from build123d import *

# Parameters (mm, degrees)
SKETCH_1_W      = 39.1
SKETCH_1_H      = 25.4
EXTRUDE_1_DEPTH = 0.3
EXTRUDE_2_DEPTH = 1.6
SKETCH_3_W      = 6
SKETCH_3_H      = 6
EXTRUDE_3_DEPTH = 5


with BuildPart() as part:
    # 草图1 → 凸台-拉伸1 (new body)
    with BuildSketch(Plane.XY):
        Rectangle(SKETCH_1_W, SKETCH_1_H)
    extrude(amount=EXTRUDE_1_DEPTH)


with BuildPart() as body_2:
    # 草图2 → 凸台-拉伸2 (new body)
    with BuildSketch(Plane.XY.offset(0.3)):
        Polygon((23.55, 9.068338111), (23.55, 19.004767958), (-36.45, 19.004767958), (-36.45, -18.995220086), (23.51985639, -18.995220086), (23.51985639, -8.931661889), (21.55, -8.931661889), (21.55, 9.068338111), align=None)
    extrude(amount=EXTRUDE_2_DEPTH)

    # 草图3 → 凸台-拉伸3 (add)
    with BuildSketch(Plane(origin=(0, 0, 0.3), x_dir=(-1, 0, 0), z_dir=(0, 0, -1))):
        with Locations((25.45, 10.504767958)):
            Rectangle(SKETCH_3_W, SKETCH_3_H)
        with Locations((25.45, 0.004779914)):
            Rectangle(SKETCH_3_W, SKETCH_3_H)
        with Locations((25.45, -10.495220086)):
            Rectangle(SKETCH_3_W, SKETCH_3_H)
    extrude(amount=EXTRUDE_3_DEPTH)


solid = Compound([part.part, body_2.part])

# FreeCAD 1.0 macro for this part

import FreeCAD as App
import Part
import Sketcher

V = App.Vector
Q = App.Units.Quantity


def add_polygon(sketch, points):
    """Adds a closed chain of lines whose ends are joined by coincident constraints."""
    first, n = sketch.GeometryCount, len(points)
    for a, b in zip(points, points[1:] + points[:1]):
        sketch.addGeometry(Part.LineSegment(App.Vector(*a, 0), App.Vector(*b, 0)), False)
    for i in range(n):
        sketch.addConstraint(Sketcher.Constraint("Coincident", first + i, 2, first + (i + 1) % n, 1))

doc = App.newDocument("Part")
body = doc.addObject("PartDesign::Body", "Body")

# Sketch on XY plane
sketch1 = body.newObject("Sketcher::SketchObject", "Sketch")
sketch1.AttachmentSupport = (doc.getObject("XY_Plane"), [""])
sketch1.MapMode = "FlatFace"
add_polygon(sketch1, [(-20, 13), (-20, -13), (20, -13), (20, 13)])  # lines 0-3
sketch1.addConstraint([
    Sketcher.Constraint("Vertical", 0),
    Sketcher.Constraint("Horizontal", 1),
    Sketcher.Constraint("Vertical", 2),
    Sketcher.Constraint("Horizontal", 3),
    Sketcher.Constraint("Symmetric", 0, 2, 2, 2, -1, 1),
    Sketcher.Constraint("DistanceX", 1, 1, 1, 2, Q("39.1 mm")),
    Sketcher.Constraint("DistanceY", 0, 2, 0, 1, Q("25.4 mm")),
])
pad1 = body.newObject("PartDesign::Pad", "Pad")
pad1.Profile = sketch1
pad1.Length = 0.3
body2 = doc.addObject("PartDesign::Body", "Body001")

# Sketch on XY plane
sketch2 = body2.newObject("Sketcher::SketchObject", "Sketch001")
sketch2.AttachmentSupport = (doc.getObject("XY_Plane001"), [""])
sketch2.MapMode = "FlatFace"
sketch2.AttachmentOffset = App.Placement(V(0, 0, 0.3), App.Rotation())
add_polygon(sketch2, [(23.6, 9.1), (23.6, 19), (-36.5, 19), (-36.5, -19), (23.5, -19), (23.5, -8.9), (21.6, -8.9), (21.6, 9.1)])  # lines 0-7
sketch2.addConstraint([
    Sketcher.Constraint("Vertical", 0),
    Sketcher.Constraint("Horizontal", 1),
    Sketcher.Constraint("Vertical", 2),
    Sketcher.Constraint("Horizontal", 3),
    Sketcher.Constraint("Vertical", 4),
    Sketcher.Constraint("Horizontal", 5),
    Sketcher.Constraint("Vertical", 6),
    Sketcher.Constraint("Horizontal", 7),
    Sketcher.Constraint("DistanceX", 1, 2, 1, 1, Q("60 mm")),
    Sketcher.Constraint("DistanceX", 7, 1, 7, 2, Q("2 mm")),
    Sketcher.Constraint("DistanceY", 6, 1, 6, 2, Q("18 mm")),
    Sketcher.Constraint("DistanceX", -1, 1, 0, 2, Q("23.55 mm")),
    Sketcher.Constraint("DistanceY", 0, 1, 0, 2, Q("9.93643 mm")),
    Sketcher.Constraint("DistanceY", 2, 2, 2, 1, Q("37.999988 mm")),
    Sketcher.Constraint("DistanceX", 3, 1, 3, 2, Q("59.969856 mm")),
    Sketcher.Constraint("DistanceY", 2, 2, -1, 1, Q("18.99522 mm")),
])
pad2 = body2.newObject("PartDesign::Pad", "Pad001")
pad2.Profile = sketch2
pad2.Length = 1.6

# Sketch on XY plane
sketch3 = body2.newObject("Sketcher::SketchObject", "Sketch002")
sketch3.AttachmentSupport = (doc.getObject("XY_Plane001"), [""])
sketch3.MapMode = "FlatFace"
sketch3.AttachmentOffset = App.Placement(V(0, 0, 0.3), App.Rotation())
add_polygon(sketch3, [(-22, 14), (-22, 8), (-28, 8), (-28, 14)])  # lines 0-3
add_polygon(sketch3, [(-22, 3), (-22, -3), (-28, -3), (-28, 3)])  # lines 4-7
add_polygon(sketch3, [(-22, -7), (-22, -13), (-28, -13), (-28, -7)])  # lines 8-11
sketch3.addConstraint([
    Sketcher.Constraint("Vertical", 0),
    Sketcher.Constraint("Horizontal", 1),
    Sketcher.Constraint("Vertical", 2),
    Sketcher.Constraint("Horizontal", 3),
    Sketcher.Constraint("Vertical", 4),
    Sketcher.Constraint("Horizontal", 5),
    Sketcher.Constraint("Vertical", 6),
    Sketcher.Constraint("Horizontal", 7),
    Sketcher.Constraint("Vertical", 8),
    Sketcher.Constraint("Horizontal", 9),
    Sketcher.Constraint("Vertical", 10),
    Sketcher.Constraint("Horizontal", 11),
    Sketcher.Constraint("Vertical", 3, 2, 4, 2),
    Sketcher.Constraint("Vertical", 2, 2, 5, 2),
    Sketcher.Constraint("Vertical", 7, 2, 8, 2),
    Sketcher.Constraint("Vertical", 6, 2, 9, 2),
    Sketcher.Constraint("Equal", 11, 0),
    Sketcher.Constraint("Equal", 2, 4),
    Sketcher.Constraint("Equal", 6, 8),
    Sketcher.Constraint("DistanceX", 1, 2, 1, 1, Q("6 mm")),
    Sketcher.Constraint("DistanceY", 8, 2, 4, 2, Q("10.5 mm")),
    Sketcher.Constraint("DistanceX", 0, 2, -1, 1, Q("22.45 mm")),
    Sketcher.Constraint("DistanceY", 4, 2, -1, 1, Q("2.99522 mm")),
    Sketcher.Constraint("DistanceY", 4, 2, 0, 2, Q("10.499988 mm")),
])
pad3 = body2.newObject("PartDesign::Pad", "Pad002")
pad3.Profile = sketch3
pad3.Length = 5
pad3.Reversed = True

doc.recompute()
